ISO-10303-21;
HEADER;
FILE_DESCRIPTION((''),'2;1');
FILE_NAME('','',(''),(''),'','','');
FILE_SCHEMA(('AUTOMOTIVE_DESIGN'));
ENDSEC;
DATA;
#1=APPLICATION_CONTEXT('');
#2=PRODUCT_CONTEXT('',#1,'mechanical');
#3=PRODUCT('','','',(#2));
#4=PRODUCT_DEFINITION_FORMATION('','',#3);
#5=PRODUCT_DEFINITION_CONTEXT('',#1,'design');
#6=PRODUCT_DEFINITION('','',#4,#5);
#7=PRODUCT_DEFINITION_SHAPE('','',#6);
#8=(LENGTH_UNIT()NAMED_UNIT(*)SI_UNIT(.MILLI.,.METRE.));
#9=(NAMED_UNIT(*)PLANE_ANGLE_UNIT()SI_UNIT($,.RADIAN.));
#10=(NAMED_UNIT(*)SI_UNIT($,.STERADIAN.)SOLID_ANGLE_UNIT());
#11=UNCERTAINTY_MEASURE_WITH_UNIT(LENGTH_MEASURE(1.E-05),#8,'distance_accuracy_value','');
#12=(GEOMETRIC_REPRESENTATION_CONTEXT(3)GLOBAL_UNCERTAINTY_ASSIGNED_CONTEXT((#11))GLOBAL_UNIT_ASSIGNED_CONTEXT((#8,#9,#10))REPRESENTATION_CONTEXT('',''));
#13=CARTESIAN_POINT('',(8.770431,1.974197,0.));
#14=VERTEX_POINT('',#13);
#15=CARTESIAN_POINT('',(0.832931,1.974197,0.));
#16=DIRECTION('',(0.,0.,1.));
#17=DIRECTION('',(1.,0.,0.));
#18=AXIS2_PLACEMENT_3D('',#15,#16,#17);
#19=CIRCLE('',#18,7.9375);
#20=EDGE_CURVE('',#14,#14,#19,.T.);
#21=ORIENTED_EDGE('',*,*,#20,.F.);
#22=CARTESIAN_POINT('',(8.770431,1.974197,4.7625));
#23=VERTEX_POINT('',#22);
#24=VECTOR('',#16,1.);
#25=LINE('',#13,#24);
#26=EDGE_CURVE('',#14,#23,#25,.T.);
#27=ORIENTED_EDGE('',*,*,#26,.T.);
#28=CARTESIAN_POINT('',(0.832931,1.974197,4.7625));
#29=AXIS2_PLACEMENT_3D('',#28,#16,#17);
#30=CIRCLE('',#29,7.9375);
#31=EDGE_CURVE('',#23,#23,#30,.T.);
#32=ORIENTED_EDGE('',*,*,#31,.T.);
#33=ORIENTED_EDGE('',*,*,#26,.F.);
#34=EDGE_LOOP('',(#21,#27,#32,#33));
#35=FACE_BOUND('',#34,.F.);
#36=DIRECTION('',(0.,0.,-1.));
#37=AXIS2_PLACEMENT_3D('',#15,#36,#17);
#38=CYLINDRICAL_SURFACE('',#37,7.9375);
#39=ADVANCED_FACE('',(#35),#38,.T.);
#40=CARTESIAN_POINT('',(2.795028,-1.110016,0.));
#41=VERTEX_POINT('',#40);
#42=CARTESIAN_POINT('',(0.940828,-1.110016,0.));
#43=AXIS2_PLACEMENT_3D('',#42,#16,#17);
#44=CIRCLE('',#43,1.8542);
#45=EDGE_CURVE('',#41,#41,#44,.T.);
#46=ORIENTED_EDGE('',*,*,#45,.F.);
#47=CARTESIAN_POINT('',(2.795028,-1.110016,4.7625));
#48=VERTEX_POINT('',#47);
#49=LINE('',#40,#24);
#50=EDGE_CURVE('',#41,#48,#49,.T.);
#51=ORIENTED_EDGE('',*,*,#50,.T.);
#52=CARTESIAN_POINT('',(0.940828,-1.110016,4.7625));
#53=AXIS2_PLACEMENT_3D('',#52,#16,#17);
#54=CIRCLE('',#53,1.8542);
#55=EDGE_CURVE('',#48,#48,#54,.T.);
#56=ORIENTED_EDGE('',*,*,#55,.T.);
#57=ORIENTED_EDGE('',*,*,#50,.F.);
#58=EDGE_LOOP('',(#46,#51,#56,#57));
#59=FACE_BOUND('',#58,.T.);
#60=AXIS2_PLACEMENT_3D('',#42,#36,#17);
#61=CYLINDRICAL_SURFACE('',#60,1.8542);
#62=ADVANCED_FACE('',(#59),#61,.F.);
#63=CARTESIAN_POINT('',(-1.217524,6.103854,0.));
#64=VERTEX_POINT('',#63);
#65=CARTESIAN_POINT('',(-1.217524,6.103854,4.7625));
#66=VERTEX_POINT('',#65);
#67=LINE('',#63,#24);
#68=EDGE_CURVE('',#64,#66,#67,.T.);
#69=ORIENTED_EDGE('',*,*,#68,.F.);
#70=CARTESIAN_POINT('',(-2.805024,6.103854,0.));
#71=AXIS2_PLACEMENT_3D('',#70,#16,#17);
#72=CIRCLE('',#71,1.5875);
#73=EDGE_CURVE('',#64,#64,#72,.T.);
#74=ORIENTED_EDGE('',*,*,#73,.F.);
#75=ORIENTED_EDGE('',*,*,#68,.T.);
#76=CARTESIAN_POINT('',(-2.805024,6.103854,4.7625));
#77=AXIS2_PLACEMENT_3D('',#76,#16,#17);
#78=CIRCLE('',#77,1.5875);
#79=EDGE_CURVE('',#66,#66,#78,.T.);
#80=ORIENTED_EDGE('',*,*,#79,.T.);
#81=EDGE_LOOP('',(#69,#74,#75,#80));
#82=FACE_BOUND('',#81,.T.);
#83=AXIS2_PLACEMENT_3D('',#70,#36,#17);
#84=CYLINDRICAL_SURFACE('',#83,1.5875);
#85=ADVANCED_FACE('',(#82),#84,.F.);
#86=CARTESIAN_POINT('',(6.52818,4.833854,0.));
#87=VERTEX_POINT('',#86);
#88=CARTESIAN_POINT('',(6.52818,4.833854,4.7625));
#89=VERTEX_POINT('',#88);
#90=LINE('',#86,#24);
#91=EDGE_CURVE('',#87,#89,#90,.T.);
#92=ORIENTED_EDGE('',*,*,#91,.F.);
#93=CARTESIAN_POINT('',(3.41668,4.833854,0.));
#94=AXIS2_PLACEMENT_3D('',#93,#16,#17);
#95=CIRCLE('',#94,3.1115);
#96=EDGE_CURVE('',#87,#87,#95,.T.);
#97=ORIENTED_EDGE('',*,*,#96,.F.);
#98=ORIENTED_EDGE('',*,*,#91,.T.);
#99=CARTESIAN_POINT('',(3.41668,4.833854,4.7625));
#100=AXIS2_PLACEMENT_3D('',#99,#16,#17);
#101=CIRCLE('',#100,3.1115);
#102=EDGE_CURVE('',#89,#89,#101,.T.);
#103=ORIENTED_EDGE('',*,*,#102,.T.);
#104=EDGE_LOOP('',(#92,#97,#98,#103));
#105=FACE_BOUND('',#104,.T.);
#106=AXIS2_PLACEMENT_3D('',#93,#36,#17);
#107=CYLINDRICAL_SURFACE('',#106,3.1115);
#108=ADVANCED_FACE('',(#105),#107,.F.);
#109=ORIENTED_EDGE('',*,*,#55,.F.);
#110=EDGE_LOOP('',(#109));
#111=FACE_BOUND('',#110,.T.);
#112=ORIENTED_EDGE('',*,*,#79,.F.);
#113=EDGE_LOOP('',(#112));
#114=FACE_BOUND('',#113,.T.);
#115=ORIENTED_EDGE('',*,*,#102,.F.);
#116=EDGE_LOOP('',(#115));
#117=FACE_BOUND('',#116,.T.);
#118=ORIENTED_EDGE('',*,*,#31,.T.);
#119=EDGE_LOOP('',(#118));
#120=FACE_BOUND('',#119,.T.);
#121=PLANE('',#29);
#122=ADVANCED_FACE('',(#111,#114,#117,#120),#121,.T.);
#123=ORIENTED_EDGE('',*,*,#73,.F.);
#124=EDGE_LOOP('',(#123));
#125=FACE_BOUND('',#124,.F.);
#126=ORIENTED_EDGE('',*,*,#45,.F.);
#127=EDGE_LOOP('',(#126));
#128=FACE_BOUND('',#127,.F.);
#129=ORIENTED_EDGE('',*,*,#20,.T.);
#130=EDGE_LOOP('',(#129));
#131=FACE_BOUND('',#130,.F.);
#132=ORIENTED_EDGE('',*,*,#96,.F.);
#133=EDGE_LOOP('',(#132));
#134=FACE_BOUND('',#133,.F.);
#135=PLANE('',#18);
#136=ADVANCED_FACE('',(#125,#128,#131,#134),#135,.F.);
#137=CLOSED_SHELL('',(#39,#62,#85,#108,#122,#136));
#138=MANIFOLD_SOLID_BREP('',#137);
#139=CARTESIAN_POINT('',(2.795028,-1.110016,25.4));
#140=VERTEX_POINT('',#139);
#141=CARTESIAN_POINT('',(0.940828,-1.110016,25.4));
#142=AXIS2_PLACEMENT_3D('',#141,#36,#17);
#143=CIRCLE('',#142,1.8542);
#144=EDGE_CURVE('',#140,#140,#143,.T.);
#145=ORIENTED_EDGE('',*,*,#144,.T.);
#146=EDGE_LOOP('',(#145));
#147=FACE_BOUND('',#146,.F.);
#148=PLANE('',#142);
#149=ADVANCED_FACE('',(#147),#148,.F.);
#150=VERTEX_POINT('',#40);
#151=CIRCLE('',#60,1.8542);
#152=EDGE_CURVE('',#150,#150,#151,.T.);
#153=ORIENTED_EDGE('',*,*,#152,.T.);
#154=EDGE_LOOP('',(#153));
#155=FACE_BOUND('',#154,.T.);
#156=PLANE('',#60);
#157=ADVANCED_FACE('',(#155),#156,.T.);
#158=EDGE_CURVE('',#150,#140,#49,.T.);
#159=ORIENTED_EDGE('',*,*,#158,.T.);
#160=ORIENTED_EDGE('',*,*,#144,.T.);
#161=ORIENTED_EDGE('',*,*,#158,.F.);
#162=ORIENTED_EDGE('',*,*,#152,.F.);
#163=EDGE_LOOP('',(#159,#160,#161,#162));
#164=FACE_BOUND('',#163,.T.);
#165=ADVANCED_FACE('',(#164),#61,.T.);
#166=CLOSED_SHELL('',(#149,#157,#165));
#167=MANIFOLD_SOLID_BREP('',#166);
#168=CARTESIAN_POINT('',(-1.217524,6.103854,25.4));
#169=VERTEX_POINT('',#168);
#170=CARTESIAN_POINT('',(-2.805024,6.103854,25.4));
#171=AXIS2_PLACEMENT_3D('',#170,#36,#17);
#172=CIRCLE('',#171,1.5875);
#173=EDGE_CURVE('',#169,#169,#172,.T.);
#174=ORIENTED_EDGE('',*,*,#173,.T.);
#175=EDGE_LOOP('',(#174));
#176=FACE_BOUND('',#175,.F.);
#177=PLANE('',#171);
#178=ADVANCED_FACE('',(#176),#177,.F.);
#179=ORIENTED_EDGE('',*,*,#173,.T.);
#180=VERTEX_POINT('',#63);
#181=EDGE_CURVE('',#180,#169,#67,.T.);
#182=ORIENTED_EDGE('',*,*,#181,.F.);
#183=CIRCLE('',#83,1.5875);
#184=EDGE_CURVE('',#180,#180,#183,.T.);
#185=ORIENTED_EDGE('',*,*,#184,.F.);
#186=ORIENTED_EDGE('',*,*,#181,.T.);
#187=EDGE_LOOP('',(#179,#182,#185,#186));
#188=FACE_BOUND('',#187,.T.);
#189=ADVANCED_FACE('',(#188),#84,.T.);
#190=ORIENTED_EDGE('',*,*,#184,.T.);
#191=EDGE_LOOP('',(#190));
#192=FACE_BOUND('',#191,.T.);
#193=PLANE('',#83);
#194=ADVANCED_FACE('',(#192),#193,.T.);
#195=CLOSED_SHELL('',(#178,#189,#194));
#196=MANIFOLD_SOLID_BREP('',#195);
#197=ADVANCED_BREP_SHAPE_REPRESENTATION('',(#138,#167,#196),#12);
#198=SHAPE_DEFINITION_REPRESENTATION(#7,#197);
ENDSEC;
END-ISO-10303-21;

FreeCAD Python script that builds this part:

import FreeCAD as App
import Part
import Sketcher
from FreeCAD import Vector
Q = App.Units.Quantity

doc = App.newDocument("Part")
body = doc.addObject("PartDesign::Body", "Body")

# Sketch on XY plane
sketch1 = doc.addObject("Sketcher::SketchObject", "Sketch")
body.addObject(sketch1)
sketch1.AttachmentSupport = (doc.XY_Plane, [""])
sketch1.MapMode = "FlatFace"
sketch1.addGeometry([
    Part.Circle(Vector(0.8, 2, 0), Vector(0, 0, 1), 7.9),
    Part.Circle(Vector(0.9, -1.1, 0), Vector(0, 0, 1), 1.9),
    Part.Circle(Vector(-2.8, 6.1, 0), Vector(0, 0, 1), 1.6),
    Part.Circle(Vector(3.4, 4.8, 0), Vector(0, 0, 1), 3.1),
], False)
sketch1.addConstraint([
    Sketcher.Constraint("Diameter", 0, Q("0.625 in")),
    Sketcher.Constraint("Diameter", 1, Q("0.146 in")),
    Sketcher.Constraint("Diameter", 2, Q("0.125 in")),
    Sketcher.Constraint("Diameter", 3, Q("0.245 in")),
    Sketcher.Constraint("DistanceY", 3, 3, 2, 3, Q("0.05 in")),
    Sketcher.Constraint("DistanceX", -1, 1, 0, 3, 0.832931),
    Sketcher.Constraint("DistanceX", -1, 1, 3, 3, 3.41668),
    Sketcher.Constraint("DistanceY", 1, 3, 2, 3, 7.21387),
    Sketcher.Constraint("DistanceX", 1, 3, 3, 3, 2.475852),
    Sketcher.Constraint("DistanceY", -1, 1, 0, 3, 1.974197),
    Sketcher.Constraint("DistanceY", 1, 3, -1, 1, 1.110016),
    Sketcher.Constraint("DistanceX", 2, 3, -1, 1, 2.805024),
])
pad1 = doc.addObject("PartDesign::Pad", "Pad")
body.addObject(pad1)
pad1.Profile = sketch1
pad1.Length = Q("0.1875 in")
body2 = doc.addObject("PartDesign::Body", "Body001")
body2.AllowCompound = True

# Sketch on XY plane
sketch2 = doc.addObject("Sketcher::SketchObject", "Sketch001")
body2.addObject(sketch2)
sketch2.AttachmentSupport = (doc.getObject("XY_Plane001"), [""])
sketch2.MapMode = "FlatFace"
sketch2.addGeometry([
    Part.Circle(Vector(-2.8, 6.1, 0), Vector(0, 0, 1), 1.6),
    Part.Circle(Vector(0.9, -1.1, 0), Vector(0, 0, 1), 1.9),
], False)
sketch2.addConstraint([
    Sketcher.Constraint("Diameter", 0, Q("0.125 in")),
    Sketcher.Constraint("Diameter", 1, Q("0.146 in")),
    Sketcher.Constraint("DistanceY", 1, 3, 0, 3, 7.21387),
    Sketcher.Constraint("DistanceX", 0, 3, -1, 1, 2.805024),
    Sketcher.Constraint("DistanceY", -1, 1, 0, 3, 6.103854),
    Sketcher.Constraint("DistanceX", -1, 1, 1, 3, 0.940828),
])
pad2 = doc.addObject("PartDesign::Pad", "Pad001")
body2.addObject(pad2)
pad2.Profile = sketch2
pad2.Length = Q("1 in")

doc.recompute()
